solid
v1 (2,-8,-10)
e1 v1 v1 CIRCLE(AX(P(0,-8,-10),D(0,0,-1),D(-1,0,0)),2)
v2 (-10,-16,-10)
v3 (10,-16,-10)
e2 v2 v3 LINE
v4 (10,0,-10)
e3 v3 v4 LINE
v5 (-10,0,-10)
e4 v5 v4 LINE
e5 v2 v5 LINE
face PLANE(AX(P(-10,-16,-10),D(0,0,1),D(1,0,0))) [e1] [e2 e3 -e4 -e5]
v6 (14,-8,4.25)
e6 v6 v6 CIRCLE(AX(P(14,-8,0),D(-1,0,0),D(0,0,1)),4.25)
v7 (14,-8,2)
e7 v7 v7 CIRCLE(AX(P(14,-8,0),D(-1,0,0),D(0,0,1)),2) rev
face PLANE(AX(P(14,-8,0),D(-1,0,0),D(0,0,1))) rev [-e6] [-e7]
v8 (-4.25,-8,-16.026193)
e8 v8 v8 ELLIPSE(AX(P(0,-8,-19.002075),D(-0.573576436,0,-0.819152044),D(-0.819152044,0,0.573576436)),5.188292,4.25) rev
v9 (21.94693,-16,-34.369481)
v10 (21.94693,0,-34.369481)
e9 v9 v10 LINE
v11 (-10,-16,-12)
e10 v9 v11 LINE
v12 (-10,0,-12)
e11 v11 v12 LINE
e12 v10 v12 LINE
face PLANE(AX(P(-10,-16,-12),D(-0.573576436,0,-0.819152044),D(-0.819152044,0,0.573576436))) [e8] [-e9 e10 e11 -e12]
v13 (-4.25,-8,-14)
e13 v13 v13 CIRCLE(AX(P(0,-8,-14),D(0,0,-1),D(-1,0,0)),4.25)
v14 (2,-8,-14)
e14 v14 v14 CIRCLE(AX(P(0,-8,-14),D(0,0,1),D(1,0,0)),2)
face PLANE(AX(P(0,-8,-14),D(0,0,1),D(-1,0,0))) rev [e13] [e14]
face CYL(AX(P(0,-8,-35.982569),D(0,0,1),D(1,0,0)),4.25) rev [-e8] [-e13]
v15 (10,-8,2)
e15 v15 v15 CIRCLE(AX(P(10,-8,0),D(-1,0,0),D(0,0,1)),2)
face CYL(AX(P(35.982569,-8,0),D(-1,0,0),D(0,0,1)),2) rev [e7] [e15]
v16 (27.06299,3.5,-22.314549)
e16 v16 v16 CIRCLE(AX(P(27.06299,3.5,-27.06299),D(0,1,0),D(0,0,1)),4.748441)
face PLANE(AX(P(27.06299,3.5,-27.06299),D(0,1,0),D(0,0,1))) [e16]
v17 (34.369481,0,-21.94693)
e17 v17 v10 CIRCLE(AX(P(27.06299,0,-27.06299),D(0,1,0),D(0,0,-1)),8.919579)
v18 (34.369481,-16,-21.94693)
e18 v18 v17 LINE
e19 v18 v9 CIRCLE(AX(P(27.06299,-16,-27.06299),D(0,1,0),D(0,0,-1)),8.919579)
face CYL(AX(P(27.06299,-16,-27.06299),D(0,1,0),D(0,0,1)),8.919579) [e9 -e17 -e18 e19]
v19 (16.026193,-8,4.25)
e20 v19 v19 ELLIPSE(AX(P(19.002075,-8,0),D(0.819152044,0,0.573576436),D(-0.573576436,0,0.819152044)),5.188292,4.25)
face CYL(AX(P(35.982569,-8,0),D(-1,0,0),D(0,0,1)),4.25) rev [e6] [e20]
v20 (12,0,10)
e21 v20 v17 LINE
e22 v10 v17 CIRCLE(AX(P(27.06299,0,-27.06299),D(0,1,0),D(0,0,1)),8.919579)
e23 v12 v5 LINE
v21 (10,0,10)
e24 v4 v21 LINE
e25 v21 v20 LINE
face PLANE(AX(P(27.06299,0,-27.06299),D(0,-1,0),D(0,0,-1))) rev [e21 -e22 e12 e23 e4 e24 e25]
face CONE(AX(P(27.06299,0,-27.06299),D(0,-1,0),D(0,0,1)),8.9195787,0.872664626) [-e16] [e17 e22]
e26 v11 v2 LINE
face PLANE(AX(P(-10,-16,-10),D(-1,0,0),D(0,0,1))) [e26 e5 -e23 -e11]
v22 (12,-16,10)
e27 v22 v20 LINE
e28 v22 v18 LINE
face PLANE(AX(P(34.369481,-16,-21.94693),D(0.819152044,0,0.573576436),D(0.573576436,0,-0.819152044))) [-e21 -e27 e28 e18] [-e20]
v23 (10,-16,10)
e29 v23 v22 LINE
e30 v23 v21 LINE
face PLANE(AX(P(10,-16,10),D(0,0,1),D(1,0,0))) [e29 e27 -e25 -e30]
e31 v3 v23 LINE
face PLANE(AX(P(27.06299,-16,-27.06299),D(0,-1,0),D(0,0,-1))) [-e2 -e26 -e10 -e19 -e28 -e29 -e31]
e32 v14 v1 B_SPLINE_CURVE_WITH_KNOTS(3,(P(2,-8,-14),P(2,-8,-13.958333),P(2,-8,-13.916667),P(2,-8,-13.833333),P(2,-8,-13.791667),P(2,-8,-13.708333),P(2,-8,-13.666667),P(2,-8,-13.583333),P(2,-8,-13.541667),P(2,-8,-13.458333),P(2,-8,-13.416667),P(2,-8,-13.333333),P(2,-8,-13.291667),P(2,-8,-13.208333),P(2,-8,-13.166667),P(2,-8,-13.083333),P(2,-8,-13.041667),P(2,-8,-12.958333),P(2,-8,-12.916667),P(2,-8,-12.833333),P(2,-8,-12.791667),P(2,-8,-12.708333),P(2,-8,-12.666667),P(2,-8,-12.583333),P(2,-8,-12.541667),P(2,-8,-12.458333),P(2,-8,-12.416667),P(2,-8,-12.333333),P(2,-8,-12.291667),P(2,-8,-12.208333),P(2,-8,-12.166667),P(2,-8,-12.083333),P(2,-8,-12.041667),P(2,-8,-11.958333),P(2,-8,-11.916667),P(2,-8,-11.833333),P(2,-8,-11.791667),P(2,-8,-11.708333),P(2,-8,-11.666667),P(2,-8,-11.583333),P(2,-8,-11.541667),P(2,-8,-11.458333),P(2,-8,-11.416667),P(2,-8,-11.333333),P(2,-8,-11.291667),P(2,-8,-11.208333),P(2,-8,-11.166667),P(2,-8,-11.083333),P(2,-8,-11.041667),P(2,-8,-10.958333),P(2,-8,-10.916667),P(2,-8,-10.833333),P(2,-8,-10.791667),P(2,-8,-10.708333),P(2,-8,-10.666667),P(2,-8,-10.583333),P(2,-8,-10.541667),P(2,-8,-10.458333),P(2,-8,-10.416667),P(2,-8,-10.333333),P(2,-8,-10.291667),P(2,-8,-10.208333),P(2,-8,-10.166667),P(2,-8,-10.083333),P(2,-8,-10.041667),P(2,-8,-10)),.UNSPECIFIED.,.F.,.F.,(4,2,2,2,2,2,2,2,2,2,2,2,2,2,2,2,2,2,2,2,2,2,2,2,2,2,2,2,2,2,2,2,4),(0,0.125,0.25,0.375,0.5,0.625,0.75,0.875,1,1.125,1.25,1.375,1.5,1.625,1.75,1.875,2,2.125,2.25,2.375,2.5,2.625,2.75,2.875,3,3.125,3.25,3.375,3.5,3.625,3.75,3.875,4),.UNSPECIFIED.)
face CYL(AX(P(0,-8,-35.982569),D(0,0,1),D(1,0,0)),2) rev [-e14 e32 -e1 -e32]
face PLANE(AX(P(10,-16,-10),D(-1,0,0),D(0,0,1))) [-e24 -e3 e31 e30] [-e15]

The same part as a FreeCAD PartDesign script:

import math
import FreeCAD as App
import Part
import Sketcher
from FreeCAD import Vector
Q = App.Units.Quantity

doc = App.newDocument("Part")
body = doc.addObject("PartDesign::Body", "Body")

# Sketch on XZ plane
sketch1 = body.newObject("Sketcher::SketchObject", "Sketch")
sketch1.AttachmentSupport = (doc.getObject("XZ_Plane"), [""])
sketch1.MapMode = "FlatFace"
sketch1.addGeometry([
    Part.LineSegment(Vector(-10, -10, 0), Vector(10, -10, 0)),  # 0
    Part.LineSegment(Vector(10, -10, 0), Vector(10, 10, 0)),  # 1
    Part.LineSegment(Vector(10, 10, 0), Vector(12, 10, 0)),  # 2
    Part.LineSegment(Vector(12, 10, 0), Vector(34.369481, -21.94693, 0)),  # 3
    Part.ArcOfCircle(Part.Circle(Vector(27.06299, -27.06299, 0), Vector(0, 0, 1), 8.919579), math.radians(-125), math.radians(35)),  # 4
    Part.LineSegment(Vector(21.94693, -34.369481, 0), Vector(-10, -12, 0)),  # 5
    Part.LineSegment(Vector(-10, -12, 0), Vector(-10, -10, 0)),  # 6
], False)
sketch1.addConstraint([
    Sketcher.Constraint("Coincident", 0, 2, 1, 1),
    Sketcher.Constraint("Coincident", 1, 2, 2, 1),
    Sketcher.Constraint("Coincident", 2, 2, 3, 1),
    Sketcher.Constraint("Tangent", 3, 2, 4, 2),
    Sketcher.Constraint("Tangent", 4, 1, 5, 1),
    Sketcher.Constraint("Coincident", 5, 2, 6, 1),
    Sketcher.Constraint("Coincident", 6, 2, 0, 1),
    Sketcher.Constraint("Horizontal", 0),
    Sketcher.Constraint("Vertical", 1),
    Sketcher.Constraint("Horizontal", 2),
    Sketcher.Constraint("Vertical", 6),
    Sketcher.Constraint("Symmetric", 1, 2, 6, 2, -1, 1),
    Sketcher.Constraint("Equal", 0, 1),
    Sketcher.Constraint("Equal", 2, 6),
    Sketcher.Constraint("Equal", 3, 5),
    Sketcher.Constraint("DistanceX", 0, 1, 0, 2, 20.0),
    Sketcher.Constraint("DistanceX", 2, 1, 2, 2, 2.0),
    Sketcher.Constraint("Angle", 3, Q("-55 deg")),
    Sketcher.Constraint("Distance", 3, 39.0),
])
pad1 = body.newObject("PartDesign::Pad", "Pad")
pad1.Profile = sketch1
pad1.Length = 16

# Sketch on XZ plane
sketch2 = body.newObject("Sketcher::SketchObject", "Sketch001")
sketch2.AttachmentSupport = (doc.getObject("XZ_Plane"), [""])
sketch2.MapMode = "FlatFace"
sketch2.addGeometry(Part.Circle(Vector(27.06299, -27.06299, 0), Vector(0, 0, 1), 8.919579), False)
sketch2.addConstraint([
    Sketcher.Constraint("Diameter", 0, 17.839157),
    Sketcher.Constraint("DistanceX", -1, 1, 0, 3, 27.06299),
    Sketcher.Constraint("DistanceY", 0, 3, -1, 1, 27.06299),
])
pad2 = body.newObject("PartDesign::Pad", "Pad001")
pad2.Profile = sketch2
pad2.Length = 3.5
pad2.Reversed = True
pad2.TaperAngle = -50

# Sketch on YZ plane
sketch3 = body.newObject("Sketcher::SketchObject", "Sketch002")
sketch3.AttachmentSupport = (doc.getObject("YZ_Plane"), [""])
sketch3.MapMode = "FlatFace"
sketch3.AttachmentOffset = App.Placement(Vector(0, 0, 10), App.Rotation())
sketch3.addGeometry(Part.Circle(Vector(-8, 0, 0), Vector(0, 0, 1), 2), False)
sketch3.addConstraint([
    Sketcher.Constraint("PointOnObject", 0, 3, -1),
    Sketcher.Constraint("Diameter", 0, 4.0),
    Sketcher.Constraint("DistanceX", 0, 3, -1, 1, 8.0),
])
pocket1 = body.newObject("PartDesign::Pocket", "Pocket")
pocket1.Profile = sketch3
pocket1.Type = "ThroughAll"
pocket1.Reversed = True

# Sketch on YZ plane
sketch4 = body.newObject("Sketcher::SketchObject", "Sketch003")
sketch4.AttachmentSupport = (doc.getObject("YZ_Plane"), [""])
sketch4.MapMode = "FlatFace"
sketch4.AttachmentOffset = App.Placement(Vector(0, 0, 14), App.Rotation())
sketch4.addGeometry(Part.Circle(Vector(-8, 0, 0), Vector(0, 0, 1), 4.25), False)
sketch4.addConstraint([
    Sketcher.Constraint("PointOnObject", 0, 3, -1),
    Sketcher.Constraint("Diameter", 0, 8.5),
    Sketcher.Constraint("DistanceX", 0, 3, -1, 1, 8.0),
])
pocket2 = body.newObject("PartDesign::Pocket", "Pocket001")
pocket2.Profile = sketch4
pocket2.Type = "ThroughAll"
pocket2.Reversed = True
doc.recompute()

datumplane = body.newObject("PartDesign::Plane", "DatumPlane")
datumplane.Placement = App.Placement(Vector(0, 0, 0), App.Rotation(Vector(0.707106781, 0, -0.707106781), Vector(0, -1, 0), Vector(-0.707106781, 0, -0.707106781), "ZXY"))
mirrored = body.newObject("PartDesign::Mirrored", "Mirrored")
mirrored.Originals = [pocket1, pocket2]
mirrored.MirrorPlane = (datumplane, [""])
body.Tip = mirrored

doc.recompute()
